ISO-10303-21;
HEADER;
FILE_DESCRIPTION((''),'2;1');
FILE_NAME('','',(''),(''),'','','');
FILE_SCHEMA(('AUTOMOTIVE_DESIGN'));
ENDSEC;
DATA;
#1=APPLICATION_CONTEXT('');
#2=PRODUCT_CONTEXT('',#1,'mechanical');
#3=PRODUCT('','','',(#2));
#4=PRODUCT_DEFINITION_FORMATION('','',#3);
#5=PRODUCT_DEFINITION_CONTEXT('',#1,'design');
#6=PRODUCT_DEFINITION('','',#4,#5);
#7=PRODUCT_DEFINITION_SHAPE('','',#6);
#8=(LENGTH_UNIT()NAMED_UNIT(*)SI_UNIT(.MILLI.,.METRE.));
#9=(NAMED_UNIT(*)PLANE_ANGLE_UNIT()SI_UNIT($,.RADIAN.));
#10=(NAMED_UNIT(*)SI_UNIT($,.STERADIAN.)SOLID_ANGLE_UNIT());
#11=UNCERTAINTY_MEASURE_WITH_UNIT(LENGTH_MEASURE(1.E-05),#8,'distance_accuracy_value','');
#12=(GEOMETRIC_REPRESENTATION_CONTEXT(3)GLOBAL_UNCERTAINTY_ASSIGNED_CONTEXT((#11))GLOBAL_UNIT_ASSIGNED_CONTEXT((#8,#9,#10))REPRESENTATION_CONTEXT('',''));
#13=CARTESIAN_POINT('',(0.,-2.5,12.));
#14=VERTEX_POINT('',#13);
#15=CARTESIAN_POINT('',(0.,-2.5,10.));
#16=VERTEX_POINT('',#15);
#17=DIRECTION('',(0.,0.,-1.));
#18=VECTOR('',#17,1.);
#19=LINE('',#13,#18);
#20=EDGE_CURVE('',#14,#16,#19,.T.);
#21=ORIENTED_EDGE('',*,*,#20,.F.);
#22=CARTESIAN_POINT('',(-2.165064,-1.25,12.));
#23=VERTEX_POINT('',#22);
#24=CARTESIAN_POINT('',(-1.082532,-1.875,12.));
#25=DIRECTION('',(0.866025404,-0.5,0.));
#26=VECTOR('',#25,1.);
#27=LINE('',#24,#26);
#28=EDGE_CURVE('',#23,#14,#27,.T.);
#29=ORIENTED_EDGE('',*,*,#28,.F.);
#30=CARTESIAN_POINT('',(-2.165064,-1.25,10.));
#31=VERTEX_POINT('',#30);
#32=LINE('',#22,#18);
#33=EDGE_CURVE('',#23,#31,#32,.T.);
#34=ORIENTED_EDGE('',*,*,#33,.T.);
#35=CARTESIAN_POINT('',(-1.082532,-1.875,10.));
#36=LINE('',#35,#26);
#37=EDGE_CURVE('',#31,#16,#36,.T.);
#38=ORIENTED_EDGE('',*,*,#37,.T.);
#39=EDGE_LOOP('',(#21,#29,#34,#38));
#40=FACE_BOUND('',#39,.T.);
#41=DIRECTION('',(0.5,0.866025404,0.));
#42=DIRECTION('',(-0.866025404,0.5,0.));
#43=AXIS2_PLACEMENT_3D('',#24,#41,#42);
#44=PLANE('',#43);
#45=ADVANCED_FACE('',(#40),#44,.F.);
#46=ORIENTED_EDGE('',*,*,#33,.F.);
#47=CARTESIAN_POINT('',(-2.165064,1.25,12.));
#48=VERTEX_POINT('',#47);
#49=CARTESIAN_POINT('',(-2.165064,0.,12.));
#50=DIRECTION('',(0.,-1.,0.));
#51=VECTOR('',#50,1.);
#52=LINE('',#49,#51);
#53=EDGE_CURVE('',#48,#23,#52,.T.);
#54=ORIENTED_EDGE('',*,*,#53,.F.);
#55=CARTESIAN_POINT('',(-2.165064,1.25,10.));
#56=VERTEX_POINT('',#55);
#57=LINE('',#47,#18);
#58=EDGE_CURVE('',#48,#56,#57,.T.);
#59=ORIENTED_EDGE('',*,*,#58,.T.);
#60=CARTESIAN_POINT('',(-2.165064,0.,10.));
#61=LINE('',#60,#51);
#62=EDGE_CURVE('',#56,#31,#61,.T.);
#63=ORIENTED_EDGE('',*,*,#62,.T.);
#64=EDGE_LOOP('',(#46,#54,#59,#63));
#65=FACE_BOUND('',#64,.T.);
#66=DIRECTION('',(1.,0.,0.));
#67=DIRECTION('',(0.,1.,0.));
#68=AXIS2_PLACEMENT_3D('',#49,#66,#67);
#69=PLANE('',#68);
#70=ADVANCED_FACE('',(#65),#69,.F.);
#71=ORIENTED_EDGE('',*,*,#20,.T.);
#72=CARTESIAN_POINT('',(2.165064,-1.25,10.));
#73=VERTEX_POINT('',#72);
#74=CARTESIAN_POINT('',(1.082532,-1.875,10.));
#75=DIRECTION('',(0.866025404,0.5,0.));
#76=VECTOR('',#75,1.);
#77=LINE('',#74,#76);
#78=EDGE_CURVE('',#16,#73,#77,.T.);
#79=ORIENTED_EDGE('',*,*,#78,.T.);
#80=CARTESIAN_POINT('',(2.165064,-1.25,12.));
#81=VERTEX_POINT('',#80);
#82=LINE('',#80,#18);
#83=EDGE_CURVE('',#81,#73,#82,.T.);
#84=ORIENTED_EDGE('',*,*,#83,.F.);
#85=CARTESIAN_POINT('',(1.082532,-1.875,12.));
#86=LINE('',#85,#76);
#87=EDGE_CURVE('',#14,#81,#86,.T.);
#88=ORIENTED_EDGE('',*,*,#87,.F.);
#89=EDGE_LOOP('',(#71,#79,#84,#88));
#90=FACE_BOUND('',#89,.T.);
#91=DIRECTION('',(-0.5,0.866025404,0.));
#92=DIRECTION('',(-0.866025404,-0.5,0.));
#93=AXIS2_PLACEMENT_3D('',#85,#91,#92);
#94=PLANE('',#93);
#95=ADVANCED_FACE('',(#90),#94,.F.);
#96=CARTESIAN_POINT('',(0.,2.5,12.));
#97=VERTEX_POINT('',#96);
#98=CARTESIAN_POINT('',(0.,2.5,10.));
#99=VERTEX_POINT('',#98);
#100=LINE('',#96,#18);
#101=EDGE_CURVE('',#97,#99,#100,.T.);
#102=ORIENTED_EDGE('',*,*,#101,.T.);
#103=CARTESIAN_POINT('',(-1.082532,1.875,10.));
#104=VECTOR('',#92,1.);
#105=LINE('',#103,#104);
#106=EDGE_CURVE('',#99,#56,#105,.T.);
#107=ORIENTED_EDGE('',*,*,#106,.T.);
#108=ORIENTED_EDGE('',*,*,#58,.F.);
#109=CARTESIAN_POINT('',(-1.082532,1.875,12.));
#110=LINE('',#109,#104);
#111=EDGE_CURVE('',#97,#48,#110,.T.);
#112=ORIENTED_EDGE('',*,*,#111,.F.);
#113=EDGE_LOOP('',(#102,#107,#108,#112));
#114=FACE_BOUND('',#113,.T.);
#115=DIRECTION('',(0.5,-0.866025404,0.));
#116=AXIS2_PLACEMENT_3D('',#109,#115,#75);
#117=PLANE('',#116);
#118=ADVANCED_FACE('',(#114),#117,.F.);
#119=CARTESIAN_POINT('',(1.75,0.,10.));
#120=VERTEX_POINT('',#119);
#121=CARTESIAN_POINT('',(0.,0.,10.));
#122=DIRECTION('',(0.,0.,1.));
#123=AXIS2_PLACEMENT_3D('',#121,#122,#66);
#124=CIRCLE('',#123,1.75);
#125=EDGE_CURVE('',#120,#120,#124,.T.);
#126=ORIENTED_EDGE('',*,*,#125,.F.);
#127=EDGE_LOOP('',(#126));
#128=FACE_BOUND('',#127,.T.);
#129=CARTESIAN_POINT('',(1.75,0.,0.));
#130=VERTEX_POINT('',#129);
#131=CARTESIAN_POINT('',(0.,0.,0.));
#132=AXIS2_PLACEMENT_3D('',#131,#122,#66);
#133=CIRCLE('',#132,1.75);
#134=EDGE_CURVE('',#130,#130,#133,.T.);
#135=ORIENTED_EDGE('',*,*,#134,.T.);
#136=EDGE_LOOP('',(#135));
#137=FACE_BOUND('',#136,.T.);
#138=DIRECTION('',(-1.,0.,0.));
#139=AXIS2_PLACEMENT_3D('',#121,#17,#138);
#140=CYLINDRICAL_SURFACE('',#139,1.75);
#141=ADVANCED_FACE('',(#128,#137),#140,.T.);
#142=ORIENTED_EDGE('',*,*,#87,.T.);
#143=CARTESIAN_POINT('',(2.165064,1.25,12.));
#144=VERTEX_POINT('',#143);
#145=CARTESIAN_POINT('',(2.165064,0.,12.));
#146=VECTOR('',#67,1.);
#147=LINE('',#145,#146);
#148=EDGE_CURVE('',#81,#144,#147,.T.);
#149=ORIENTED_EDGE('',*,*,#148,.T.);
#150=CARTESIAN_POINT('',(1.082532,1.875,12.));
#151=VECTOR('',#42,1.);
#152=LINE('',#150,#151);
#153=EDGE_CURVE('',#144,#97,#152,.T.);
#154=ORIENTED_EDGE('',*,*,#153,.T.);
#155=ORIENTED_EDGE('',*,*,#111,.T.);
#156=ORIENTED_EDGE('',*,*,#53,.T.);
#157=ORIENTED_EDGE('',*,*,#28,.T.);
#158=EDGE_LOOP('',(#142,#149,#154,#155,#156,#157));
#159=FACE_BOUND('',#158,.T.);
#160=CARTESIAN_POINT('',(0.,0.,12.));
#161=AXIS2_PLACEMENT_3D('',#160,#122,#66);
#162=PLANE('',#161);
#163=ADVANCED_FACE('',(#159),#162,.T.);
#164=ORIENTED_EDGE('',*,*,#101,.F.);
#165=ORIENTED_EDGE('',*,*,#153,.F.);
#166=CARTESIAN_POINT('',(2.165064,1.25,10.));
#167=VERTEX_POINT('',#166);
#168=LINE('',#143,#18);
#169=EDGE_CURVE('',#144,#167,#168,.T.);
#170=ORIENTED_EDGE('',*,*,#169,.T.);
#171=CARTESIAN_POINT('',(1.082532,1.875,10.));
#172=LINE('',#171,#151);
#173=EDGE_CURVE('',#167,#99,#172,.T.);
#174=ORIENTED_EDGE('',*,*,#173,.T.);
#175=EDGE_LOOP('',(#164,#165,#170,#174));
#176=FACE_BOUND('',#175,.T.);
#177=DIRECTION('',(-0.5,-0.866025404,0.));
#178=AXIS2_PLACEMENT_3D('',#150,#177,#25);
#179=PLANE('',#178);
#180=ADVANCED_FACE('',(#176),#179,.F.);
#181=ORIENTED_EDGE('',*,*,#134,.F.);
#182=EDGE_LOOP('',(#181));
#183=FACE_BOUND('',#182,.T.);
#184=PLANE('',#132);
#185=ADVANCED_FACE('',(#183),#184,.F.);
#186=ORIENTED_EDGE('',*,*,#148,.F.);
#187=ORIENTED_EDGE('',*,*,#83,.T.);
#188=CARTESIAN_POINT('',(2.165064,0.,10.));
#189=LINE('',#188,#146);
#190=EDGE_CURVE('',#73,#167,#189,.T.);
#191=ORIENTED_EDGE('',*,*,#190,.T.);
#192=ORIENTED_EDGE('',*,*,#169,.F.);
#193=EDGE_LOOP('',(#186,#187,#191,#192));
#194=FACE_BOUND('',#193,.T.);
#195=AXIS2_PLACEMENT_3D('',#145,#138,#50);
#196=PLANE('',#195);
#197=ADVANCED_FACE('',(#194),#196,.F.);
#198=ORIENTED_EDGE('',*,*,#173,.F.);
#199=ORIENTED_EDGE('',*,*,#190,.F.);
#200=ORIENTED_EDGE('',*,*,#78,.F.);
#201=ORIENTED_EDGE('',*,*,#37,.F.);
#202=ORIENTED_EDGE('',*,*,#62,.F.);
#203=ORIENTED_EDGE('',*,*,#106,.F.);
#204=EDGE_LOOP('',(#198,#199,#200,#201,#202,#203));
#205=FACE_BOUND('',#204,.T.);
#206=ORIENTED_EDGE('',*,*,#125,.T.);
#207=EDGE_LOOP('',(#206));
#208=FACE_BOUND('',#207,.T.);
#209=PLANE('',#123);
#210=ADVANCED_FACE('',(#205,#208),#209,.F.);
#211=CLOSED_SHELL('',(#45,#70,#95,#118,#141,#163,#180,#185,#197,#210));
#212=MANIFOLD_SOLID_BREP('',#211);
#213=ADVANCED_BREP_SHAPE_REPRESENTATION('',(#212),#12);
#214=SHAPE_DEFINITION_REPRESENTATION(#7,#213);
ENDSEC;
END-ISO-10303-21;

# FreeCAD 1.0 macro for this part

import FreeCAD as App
import Part
import Sketcher
from FreeCAD import Vector
Q = App.Units.Quantity


def add_polygon(sketch, points):
    """Adds a closed chain of lines whose ends are joined by coincident constraints."""
    first, n = sketch.GeometryCount, len(points)
    for a, b in zip(points, points[1:] + points[:1]):
        sketch.addGeometry(Part.LineSegment(App.Vector(*a, 0), App.Vector(*b, 0)), False)
    for i in range(n):
        sketch.addConstraint(Sketcher.Constraint("Coincident", first + i, 2, first + (i + 1) % n, 1))

doc = App.newDocument("Part")
body = doc.addObject("PartDesign::Body", "Body")

# Sketch on XY plane
sketch1 = doc.addObject("Sketcher::SketchObject", "Sketch")
body.addObject(sketch1)
sketch1.AttachmentSupport = (doc.XY_Plane, [""])
sketch1.MapMode = "FlatFace"
sketch1.addGeometry(Part.Circle(Vector(0, 0, 0), Vector(0, 0, 1), 1.8), False)
sketch1.addConstraint([
    Sketcher.Constraint("Coincident", 0, 3, -1, 1),
    Sketcher.Constraint("Diameter", 0, Q("3.5 mm")),
])
pad1 = doc.addObject("PartDesign::Pad", "Pad")
body.addObject(pad1)
pad1.Profile = sketch1
pad1.Length = 10

# Sketch on XY plane
sketch2 = doc.addObject("Sketcher::SketchObject", "Sketch001")
body.addObject(sketch2)
sketch2.AttachmentSupport = (doc.XY_Plane, [""])
sketch2.MapMode = "FlatFace"
sketch2.AttachmentOffset = App.Placement(Vector(0, 0, 10), App.Rotation())
add_polygon(sketch2, [(0, 2.5), (-2.2, 1.2), (-2.2, -1.2), (0, -2.5), (2.2, -1.2), (2.2, 1.2)])  # lines 0-5
sketch2.addConstraint([
    Sketcher.Constraint("Vertical", 1),
    Sketcher.Constraint("Vertical", 4),
    Sketcher.Constraint("Symmetric", 0, 2, 3, 2, -1, 1),
    Sketcher.Constraint("Symmetric", 2, 2, 5, 2, -1, 1),
    Sketcher.Constraint("PointOnObject", 2, 2, -2),
    Sketcher.Constraint("Parallel", 2, 5),
    Sketcher.Constraint("Horizontal", 1, 2, 3, 2),
    Sketcher.Constraint("Angle", 0, Q("-150 deg")),
    Sketcher.Constraint("DistanceY", 1, 2, 1, 1, Q("2.5 mm")),
    Sketcher.Constraint("DistanceY", 2, 2, 5, 2, Q("5 mm")),
])
pad2 = doc.addObject("PartDesign::Pad", "Pad001")
body.addObject(pad2)
pad2.Profile = sketch2
pad2.Length = 2

doc.recompute()
